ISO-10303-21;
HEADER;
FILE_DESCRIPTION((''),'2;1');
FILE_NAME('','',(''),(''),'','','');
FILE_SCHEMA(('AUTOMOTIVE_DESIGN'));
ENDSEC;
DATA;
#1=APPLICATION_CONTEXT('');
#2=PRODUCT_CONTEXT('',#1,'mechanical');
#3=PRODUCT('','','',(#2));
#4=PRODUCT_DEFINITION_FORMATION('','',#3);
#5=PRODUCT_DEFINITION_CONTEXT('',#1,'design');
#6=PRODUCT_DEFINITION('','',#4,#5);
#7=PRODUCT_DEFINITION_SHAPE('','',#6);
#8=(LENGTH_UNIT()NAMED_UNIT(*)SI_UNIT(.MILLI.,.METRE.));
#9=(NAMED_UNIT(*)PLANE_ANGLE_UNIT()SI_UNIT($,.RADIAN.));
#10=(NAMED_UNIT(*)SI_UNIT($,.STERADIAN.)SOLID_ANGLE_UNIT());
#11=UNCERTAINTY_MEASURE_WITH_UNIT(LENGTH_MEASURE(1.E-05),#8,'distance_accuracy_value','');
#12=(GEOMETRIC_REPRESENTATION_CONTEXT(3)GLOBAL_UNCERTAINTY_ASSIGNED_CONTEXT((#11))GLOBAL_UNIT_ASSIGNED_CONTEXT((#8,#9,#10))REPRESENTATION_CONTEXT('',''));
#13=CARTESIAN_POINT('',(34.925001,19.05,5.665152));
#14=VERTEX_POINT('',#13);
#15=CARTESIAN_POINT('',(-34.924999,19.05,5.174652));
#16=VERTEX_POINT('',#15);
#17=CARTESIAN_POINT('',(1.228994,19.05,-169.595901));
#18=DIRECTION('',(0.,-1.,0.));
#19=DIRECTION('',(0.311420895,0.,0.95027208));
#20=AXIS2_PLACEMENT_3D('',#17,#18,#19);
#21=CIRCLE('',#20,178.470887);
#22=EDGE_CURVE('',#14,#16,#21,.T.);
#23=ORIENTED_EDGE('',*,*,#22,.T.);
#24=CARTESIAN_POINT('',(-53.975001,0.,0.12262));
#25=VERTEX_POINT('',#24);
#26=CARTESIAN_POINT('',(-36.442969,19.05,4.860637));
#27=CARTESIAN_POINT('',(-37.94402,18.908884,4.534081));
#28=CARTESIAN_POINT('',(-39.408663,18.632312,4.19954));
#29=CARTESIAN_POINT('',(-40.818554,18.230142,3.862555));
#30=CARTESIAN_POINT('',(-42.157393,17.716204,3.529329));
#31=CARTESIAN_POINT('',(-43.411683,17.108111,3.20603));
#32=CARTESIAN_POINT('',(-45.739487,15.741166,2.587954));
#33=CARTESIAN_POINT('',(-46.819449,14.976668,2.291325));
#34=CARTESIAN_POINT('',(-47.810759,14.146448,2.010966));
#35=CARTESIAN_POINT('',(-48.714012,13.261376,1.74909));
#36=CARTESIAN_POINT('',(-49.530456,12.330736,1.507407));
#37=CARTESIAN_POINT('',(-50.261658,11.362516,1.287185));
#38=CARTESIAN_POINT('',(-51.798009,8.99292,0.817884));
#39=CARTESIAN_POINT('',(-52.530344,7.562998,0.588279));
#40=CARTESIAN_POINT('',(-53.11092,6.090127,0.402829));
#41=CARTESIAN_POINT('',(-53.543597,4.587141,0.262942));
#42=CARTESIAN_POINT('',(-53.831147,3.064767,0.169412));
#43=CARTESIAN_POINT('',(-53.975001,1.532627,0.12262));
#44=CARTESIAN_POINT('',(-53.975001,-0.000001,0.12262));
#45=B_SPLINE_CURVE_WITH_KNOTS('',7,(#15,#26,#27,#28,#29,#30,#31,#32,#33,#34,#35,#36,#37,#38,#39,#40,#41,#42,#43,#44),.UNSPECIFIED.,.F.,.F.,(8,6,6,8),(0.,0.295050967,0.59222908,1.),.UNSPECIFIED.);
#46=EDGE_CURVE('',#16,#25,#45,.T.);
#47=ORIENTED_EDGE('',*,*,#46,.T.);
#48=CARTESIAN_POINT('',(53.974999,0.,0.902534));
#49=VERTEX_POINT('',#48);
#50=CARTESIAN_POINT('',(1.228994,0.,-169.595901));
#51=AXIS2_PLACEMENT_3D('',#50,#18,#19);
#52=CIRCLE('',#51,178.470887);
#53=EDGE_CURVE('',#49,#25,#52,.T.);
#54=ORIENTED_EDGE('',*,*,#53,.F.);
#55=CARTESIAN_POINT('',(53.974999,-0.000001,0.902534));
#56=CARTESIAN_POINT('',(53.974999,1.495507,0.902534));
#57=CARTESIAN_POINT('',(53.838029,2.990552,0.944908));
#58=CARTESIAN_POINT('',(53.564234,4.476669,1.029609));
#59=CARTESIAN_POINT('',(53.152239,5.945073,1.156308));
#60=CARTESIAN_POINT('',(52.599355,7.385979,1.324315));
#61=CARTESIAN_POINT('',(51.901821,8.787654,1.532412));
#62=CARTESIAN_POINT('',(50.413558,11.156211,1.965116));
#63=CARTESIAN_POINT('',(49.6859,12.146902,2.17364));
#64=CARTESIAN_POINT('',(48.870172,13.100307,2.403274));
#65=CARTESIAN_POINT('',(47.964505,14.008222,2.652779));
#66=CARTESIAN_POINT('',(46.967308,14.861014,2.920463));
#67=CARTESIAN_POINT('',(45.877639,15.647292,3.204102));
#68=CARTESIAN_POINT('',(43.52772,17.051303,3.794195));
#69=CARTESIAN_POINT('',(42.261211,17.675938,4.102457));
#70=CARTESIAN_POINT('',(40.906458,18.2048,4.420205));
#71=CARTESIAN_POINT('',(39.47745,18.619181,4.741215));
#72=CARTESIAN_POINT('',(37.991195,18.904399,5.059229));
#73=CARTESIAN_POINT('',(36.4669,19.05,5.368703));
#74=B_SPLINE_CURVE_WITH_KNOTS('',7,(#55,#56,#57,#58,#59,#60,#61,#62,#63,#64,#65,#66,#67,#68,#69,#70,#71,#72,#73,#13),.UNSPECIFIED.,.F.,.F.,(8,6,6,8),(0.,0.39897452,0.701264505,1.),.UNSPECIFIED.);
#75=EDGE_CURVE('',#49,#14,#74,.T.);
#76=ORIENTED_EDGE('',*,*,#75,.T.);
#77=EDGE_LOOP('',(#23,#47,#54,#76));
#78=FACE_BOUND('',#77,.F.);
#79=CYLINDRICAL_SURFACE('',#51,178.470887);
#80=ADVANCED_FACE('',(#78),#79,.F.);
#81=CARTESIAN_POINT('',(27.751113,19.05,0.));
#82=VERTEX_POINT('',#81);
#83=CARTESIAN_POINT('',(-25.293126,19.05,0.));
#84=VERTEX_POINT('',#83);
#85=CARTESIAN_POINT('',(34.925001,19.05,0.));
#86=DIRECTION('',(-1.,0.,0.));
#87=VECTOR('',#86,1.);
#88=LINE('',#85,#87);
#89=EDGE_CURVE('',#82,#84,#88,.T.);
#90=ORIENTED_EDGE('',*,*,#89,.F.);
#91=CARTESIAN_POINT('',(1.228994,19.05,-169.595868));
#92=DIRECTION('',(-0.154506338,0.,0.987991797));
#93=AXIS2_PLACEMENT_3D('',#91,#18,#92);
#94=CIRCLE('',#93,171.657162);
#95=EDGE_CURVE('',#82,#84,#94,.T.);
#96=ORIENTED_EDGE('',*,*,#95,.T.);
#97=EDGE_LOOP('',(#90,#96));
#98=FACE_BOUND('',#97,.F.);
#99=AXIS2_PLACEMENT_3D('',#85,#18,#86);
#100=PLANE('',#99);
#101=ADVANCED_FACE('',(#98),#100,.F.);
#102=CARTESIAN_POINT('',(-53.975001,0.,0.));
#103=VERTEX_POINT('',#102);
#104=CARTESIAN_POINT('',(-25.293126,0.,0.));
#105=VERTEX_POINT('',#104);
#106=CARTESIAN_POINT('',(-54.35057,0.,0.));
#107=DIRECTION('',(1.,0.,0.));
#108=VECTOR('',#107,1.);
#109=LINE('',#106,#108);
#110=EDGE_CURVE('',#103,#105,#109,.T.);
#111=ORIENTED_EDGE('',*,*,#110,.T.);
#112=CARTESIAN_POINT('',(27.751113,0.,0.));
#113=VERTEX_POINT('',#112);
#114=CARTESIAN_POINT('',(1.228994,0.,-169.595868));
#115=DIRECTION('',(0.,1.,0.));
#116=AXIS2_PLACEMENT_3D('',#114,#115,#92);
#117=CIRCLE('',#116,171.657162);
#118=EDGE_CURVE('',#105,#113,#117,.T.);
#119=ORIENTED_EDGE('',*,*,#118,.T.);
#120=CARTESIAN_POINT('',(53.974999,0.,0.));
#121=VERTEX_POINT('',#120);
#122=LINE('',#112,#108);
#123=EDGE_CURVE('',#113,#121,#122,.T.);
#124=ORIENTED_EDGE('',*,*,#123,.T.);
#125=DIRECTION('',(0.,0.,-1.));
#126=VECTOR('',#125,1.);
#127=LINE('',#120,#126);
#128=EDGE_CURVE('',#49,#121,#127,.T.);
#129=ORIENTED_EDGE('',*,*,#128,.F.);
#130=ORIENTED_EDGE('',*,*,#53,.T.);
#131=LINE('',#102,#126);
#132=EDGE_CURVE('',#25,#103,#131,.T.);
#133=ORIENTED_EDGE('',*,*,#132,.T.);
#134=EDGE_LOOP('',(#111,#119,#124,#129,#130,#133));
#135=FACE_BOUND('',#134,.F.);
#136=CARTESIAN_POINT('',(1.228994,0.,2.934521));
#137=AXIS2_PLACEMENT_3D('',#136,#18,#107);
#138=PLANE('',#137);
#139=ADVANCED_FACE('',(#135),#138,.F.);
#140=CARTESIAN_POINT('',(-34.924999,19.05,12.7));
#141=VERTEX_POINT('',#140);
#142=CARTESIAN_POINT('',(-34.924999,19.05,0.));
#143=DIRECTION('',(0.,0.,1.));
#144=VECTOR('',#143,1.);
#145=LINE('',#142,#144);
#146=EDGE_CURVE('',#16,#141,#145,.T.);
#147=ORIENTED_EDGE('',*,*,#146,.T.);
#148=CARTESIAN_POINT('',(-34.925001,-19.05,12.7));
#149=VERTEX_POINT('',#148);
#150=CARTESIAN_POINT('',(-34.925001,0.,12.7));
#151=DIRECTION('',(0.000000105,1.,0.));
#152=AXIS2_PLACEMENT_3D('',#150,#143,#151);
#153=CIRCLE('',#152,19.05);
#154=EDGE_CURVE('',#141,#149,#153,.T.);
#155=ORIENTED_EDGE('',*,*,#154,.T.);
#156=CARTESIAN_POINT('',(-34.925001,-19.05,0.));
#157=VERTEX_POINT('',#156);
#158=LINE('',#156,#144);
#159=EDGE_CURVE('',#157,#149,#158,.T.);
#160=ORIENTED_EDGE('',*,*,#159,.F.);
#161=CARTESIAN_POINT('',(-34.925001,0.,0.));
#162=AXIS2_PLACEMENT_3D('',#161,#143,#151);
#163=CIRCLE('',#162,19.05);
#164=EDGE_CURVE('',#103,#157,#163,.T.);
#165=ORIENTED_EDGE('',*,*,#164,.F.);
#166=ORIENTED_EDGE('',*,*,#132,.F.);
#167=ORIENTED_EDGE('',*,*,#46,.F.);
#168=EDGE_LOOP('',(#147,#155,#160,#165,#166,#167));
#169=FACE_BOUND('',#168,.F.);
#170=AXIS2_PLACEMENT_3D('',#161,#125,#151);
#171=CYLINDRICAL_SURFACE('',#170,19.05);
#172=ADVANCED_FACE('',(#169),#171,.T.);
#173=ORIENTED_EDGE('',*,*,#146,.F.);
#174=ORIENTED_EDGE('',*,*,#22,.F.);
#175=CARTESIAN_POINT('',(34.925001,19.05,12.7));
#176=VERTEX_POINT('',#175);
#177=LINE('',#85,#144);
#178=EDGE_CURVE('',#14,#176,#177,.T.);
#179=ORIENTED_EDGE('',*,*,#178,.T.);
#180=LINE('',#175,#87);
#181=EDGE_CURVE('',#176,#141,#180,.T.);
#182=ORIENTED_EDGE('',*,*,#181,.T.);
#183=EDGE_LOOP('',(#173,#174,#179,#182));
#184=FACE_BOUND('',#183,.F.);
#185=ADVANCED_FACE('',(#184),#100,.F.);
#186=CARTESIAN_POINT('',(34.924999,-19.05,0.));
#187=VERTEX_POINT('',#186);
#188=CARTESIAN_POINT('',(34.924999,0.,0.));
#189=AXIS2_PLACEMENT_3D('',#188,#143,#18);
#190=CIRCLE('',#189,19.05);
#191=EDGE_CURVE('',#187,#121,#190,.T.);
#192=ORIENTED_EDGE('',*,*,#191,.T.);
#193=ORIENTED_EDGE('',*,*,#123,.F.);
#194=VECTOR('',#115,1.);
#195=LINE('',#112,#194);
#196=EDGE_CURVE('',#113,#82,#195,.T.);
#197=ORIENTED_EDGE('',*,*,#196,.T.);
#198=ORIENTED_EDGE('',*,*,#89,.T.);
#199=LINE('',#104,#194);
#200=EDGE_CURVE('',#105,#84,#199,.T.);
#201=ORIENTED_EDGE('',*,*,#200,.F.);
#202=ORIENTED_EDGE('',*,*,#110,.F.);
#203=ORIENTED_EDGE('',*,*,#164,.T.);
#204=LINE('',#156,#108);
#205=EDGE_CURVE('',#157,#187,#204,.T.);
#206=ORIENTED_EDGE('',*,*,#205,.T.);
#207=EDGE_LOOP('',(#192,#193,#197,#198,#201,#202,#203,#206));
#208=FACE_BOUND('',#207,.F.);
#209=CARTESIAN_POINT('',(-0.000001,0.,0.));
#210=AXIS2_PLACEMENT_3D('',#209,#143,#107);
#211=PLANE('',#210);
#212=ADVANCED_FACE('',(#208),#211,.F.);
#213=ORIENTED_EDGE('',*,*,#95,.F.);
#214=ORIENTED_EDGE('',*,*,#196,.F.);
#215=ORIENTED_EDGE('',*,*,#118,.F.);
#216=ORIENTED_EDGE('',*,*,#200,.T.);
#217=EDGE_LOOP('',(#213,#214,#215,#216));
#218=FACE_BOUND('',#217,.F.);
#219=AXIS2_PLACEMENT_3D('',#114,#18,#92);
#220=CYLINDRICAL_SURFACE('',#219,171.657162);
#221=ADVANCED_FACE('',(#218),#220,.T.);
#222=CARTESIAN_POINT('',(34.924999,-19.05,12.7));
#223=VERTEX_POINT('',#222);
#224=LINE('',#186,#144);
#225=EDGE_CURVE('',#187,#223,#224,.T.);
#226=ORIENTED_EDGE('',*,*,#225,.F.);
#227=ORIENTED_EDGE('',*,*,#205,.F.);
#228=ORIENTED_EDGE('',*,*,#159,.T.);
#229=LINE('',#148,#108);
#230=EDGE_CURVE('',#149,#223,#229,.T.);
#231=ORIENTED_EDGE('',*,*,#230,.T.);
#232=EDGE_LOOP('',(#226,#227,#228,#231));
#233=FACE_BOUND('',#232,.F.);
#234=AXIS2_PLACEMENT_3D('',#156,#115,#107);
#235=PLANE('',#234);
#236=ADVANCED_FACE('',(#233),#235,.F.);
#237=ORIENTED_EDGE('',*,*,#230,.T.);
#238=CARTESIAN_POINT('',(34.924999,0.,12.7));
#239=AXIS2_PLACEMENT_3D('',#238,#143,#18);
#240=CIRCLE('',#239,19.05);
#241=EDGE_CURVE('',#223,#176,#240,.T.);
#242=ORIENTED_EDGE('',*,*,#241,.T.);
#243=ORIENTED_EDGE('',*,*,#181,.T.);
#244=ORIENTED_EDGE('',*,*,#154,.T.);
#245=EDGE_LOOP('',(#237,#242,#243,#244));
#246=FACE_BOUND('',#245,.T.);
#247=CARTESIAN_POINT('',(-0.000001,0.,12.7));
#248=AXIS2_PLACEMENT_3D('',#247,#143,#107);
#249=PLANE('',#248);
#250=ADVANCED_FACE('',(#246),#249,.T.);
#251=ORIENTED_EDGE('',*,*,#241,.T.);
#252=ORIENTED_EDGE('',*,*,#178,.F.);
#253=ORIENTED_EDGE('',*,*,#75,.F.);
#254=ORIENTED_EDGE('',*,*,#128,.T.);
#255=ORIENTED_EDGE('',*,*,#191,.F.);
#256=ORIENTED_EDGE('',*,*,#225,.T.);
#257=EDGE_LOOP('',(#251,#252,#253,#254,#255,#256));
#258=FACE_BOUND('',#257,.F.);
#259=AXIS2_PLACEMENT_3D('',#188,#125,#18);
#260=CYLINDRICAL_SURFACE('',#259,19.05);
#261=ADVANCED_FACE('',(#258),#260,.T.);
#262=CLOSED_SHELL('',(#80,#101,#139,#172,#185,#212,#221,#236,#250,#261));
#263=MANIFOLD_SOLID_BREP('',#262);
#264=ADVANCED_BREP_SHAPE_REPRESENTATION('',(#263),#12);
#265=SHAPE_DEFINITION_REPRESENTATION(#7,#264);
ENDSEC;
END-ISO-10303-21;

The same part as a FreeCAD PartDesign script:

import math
import FreeCAD as App
import Part
import Sketcher
Q = App.Units.Quantity

doc = App.newDocument("Part")
params = doc.addObject("Spreadsheet::Sheet", "Params")
for row, (alias, value) in enumerate([
    ("sketch1_radius", "0.75 in"),
    ("sketch1_width", "2.75 in"),
    ("pad1_length", "0.5 in"),
    ("pocket1_length", "2 in"),
], start=1):
    params.set(f"A{row}", alias)
    params.set(f"B{row}", "=" + value)
    params.setAlias(f"B{row}", alias)

body = doc.addObject("PartDesign::Body", "Body")

sketch1 = body.newObject("Sketcher::SketchObject", "Sketch")
sketch1.AttachmentSupport = (doc.getObject("XY_Plane"), [""])
sketch1.MapMode = "FlatFace"
sketch1.addGeometry(Part.ArcOfCircle(Part.Circle(App.Vector(35, 0, 0), App.Vector(0, 0, 1), 19), math.radians(-90), math.radians(90)), False)
sketch1.addGeometry(Part.LineSegment(App.Vector(35, 19, 0), App.Vector(-35, 19, 0)), False)
sketch1.addGeometry(Part.ArcOfCircle(Part.Circle(App.Vector(-35, 0, 0), App.Vector(0, 0, 1), 19), math.radians(90), math.radians(270)), False)
sketch1.addGeometry(Part.LineSegment(App.Vector(-35, -19, 0), App.Vector(35, -19, 0)), False)
sketch1.addConstraint(Sketcher.Constraint("Tangent", 0, 2, 1, 1))
sketch1.addConstraint(Sketcher.Constraint("Tangent", 1, 2, 2, 1))
sketch1.addConstraint(Sketcher.Constraint("Tangent", 2, 2, 3, 1))
sketch1.addConstraint(Sketcher.Constraint("Tangent", 3, 2, 0, 1))
sketch1.addConstraint(Sketcher.Constraint("Horizontal", 1))
sketch1.addConstraint(Sketcher.Constraint("Horizontal", 3))
sketch1.addConstraint(Sketcher.Constraint("Symmetric", 0, 3, 2, 3, -1, 1))
sketch1.addConstraint(Sketcher.Constraint("Radius", 0, Q("0.75 in")))
sketch1.addConstraint(Sketcher.Constraint("DistanceX", 1, 2, 1, 1, Q("2.75 in")))
sketch1.setExpression("Constraints[7]", "Params.sketch1_radius")
sketch1.setExpression("Constraints[8]", "Params.sketch1_width")
pad1 = body.newObject("PartDesign::Pad", "Pad")
pad1.Profile = sketch1
pad1.setExpression("Length", "Params.pad1_length")

sketch2 = body.newObject("Sketcher::SketchObject", "Sketch001")
sketch2.AttachmentSupport = (doc.getObject("XZ_Plane"), [""])
sketch2.MapMode = "FlatFace"
sketch2.addGeometry(Part.ArcOfCircle(Part.Circle(App.Vector(1, -170, 0), App.Vector(0, 0, 1), 172), math.radians(81.11), math.radians(98.89)), False)
sketch2.addGeometry(Part.LineSegment(App.Vector(28, 0, 0), App.Vector(57, 0, 0)), False)
sketch2.addGeometry(Part.ArcOfCircle(Part.Circle(App.Vector(1, -170, 0), App.Vector(0, 0, 1), 178), math.radians(72), math.radians(108)), False)
sketch2.addGeometry(Part.LineSegment(App.Vector(-54, 0, 0), App.Vector(-25, 0, 0)), False)
sketch2.addConstraint(Sketcher.Constraint("Coincident", 0, 1, 1, 1))
sketch2.addConstraint(Sketcher.Constraint("Coincident", 1, 2, 2, 1))
sketch2.addConstraint(Sketcher.Constraint("Coincident", 2, 2, 3, 1))
sketch2.addConstraint(Sketcher.Constraint("Coincident", 3, 2, 0, 2))
sketch2.addConstraint(Sketcher.Constraint("Horizontal", 1))
sketch2.addConstraint(Sketcher.Constraint("Horizontal", 3))
sketch2.addConstraint(Sketcher.Constraint("PointOnObject", 0, 1, -1))
sketch2.addConstraint(Sketcher.Constraint("PointOnObject", 2, 2, -1))
sketch2.addConstraint(Sketcher.Constraint("Vertical", 0, 3, 2, 3))
sketch2.addConstraint(Sketcher.Constraint("Radius", 0, Q("171.657162 mm")))
sketch2.addConstraint(Sketcher.Constraint("Radius", 2, Q("178.470887 mm")))
sketch2.addConstraint(Sketcher.Constraint("DistanceY", 2, 3, -1, 1, Q("169.595901 mm")))
sketch2.addConstraint(Sketcher.Constraint("DistanceX", 1, 1, 1, 2, Q("29.057444 mm")))
sketch2.addConstraint(Sketcher.Constraint("DistanceX", 2, 2, -1, 1, Q("54.35057 mm")))
pocket1 = body.newObject("PartDesign::Pocket", "Pocket")
pocket1.Profile = sketch2
pocket1.setExpression("Length", "Params.pocket1_length")

doc.recompute()
